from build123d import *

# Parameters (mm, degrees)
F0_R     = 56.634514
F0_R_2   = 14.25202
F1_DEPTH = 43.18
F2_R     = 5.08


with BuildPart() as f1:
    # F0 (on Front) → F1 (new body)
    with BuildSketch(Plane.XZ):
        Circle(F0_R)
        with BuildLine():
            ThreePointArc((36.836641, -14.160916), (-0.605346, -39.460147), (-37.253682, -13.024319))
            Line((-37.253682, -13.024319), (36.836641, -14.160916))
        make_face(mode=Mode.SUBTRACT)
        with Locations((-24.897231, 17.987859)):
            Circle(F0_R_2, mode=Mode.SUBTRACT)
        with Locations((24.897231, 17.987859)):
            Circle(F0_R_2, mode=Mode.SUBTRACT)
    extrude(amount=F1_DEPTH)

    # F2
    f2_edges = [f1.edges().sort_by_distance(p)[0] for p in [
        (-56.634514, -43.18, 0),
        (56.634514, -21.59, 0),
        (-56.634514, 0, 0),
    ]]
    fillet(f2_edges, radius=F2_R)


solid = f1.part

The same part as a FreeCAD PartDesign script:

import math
import FreeCAD as App
import Part
import Sketcher

V = App.Vector
Q = App.Units.Quantity


def edges_at(feature, points):
    """Names of the edges that pass closest to the given points."""
    edges = feature.Shape.Edges
    near = lambda p: min(range(len(edges)), key=lambda i: edges[i].distToShape(Part.Vertex(*p))[0])
    return sorted({f"Edge{near(p) + 1}" for p in points})

doc = App.newDocument("Part")
body = doc.addObject("PartDesign::Body", "Body")

# Sketch on XZ plane
sketch1 = body.newObject("Sketcher::SketchObject", "Sketch")
sketch1.AttachmentSupport = (doc.getObject("XZ_Plane"), [""])
sketch1.MapMode = "FlatFace"
sketch1.addGeometry([
    Part.Circle(V(0, 0, 0), V(0, 0, 1), 57),  # 0
    Part.LineSegment(V(-37, -13, 0), V(37, -14, 0)),  # 1
    Part.ArcOfCircle(Part.Circle(V(0, 0, 0), V(0, 0, 1), 39), math.radians(-161), math.radians(-21)),  # 2
    Part.Circle(V(-25, 18, 0), V(0, 0, 1), 14),  # 3
    Part.Circle(V(25, 18, 0), V(0, 0, 1), 14),  # 4
], False)
sketch1.addConstraint([
    Sketcher.Constraint("Coincident", 1, 1, 2, 1),
    Sketcher.Constraint("Coincident", 2, 2, 1, 2),
    Sketcher.Constraint("Coincident", 0, 3, -1, 1),
    Sketcher.Constraint("Coincident", 2, 3, -1, 1),
    Sketcher.Constraint("Equal", 3, 4),
    Sketcher.Constraint("Symmetric", 3, 3, 4, 3, -2),
    Sketcher.Constraint("Diameter", 0, 113.269028),
    Sketcher.Constraint("Diameter", 3, 28.50404),
    Sketcher.Constraint("Radius", 2, 39.464791),
    Sketcher.Constraint("DistanceY", 2, 2, 4, 3, Q("1.2656998 in")),
    Sketcher.Constraint("Distance", 1, 74.099041),
    Sketcher.Constraint("DistanceX", 3, 3, -1, 1, 24.897231),
    Sketcher.Constraint("DistanceY", -1, 1, 3, 3, 17.987859),
])
pad1 = body.newObject("PartDesign::Pad", "Pad")
pad1.Profile = sketch1
pad1.Length = Q("1.7 in")
doc.recompute()

fillet = body.newObject("PartDesign::Fillet", "Fillet")
fillet.Base = (pad1, edges_at(pad1, [(-56.635, -43.18, 0), (56.635, -21.59, 0), (-56.635, 0, 0)]))
fillet.Radius = Q("0.2 in")

doc.recompute()
